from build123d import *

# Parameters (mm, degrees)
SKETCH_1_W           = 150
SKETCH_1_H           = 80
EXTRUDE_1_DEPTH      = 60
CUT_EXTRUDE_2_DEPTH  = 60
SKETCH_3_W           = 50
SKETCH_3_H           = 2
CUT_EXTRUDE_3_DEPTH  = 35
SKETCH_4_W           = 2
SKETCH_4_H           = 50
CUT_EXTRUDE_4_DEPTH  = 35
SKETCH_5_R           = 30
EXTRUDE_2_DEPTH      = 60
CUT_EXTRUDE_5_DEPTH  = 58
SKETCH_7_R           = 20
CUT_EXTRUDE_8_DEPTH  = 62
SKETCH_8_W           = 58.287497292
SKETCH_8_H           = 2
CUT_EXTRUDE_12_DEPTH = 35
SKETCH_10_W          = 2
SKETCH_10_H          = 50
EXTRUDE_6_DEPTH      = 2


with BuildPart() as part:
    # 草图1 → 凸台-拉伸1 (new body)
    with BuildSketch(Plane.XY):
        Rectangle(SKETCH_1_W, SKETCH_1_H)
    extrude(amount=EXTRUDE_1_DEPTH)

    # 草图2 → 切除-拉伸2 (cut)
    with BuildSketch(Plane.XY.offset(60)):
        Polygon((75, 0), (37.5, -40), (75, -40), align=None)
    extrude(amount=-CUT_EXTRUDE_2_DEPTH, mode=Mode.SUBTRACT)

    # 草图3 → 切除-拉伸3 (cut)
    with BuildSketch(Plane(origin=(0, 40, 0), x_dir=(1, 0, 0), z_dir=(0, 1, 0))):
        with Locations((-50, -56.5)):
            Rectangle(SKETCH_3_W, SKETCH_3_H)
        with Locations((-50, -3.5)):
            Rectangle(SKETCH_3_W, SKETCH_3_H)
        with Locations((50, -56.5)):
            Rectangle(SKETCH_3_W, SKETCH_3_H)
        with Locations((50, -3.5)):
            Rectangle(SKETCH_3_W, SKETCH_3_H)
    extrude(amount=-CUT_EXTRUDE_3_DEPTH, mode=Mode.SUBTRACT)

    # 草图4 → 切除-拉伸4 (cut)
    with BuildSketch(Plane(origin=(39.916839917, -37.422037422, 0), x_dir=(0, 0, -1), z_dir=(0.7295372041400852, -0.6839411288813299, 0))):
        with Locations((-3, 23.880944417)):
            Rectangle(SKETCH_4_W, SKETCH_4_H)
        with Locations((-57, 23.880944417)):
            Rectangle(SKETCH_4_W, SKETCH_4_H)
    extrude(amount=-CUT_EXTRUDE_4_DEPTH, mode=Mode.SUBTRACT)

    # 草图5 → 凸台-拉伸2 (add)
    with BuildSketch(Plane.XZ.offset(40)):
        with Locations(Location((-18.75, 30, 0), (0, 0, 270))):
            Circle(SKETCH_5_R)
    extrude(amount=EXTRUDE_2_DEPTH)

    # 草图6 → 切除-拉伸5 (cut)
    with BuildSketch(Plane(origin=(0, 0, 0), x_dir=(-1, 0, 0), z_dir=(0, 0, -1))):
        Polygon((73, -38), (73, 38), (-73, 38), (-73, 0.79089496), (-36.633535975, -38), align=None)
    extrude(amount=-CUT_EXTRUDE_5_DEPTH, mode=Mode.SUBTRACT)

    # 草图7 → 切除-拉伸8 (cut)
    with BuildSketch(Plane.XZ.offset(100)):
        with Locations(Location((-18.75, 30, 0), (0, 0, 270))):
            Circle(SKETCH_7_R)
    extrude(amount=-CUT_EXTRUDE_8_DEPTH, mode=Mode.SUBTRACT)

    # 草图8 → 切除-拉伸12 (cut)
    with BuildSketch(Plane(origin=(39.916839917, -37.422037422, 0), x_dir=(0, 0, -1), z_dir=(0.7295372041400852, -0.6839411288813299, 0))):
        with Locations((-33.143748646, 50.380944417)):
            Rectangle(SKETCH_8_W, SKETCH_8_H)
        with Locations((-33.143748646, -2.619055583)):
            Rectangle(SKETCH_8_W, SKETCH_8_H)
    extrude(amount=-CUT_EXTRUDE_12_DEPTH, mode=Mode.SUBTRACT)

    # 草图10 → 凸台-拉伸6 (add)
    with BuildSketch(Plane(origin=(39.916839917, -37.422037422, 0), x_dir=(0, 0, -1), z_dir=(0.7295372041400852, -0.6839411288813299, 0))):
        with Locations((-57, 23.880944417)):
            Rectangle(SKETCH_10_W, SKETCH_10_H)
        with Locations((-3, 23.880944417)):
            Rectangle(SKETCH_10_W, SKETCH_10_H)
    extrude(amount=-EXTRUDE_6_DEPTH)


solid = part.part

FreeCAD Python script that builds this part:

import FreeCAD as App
import Part
import Sketcher

V = App.Vector
Q = App.Units.Quantity

doc = App.newDocument("Part")
body = doc.addObject("PartDesign::Body", "Body")

# Sketch on XY plane
sketch1 = body.newObject("Sketcher::SketchObject", "Sketch")
sketch1.AttachmentSupport = (doc.getObject("XY_Plane"), [""])
sketch1.MapMode = "FlatFace"
sketch1.addGeometry([
    Part.LineSegment(V(-75, 40, 0), V(-75, -40, 0)),
    Part.LineSegment(V(-75, -40, 0), V(75, -40, 0)),
    Part.LineSegment(V(75, -40, 0), V(75, 40, 0)),
    Part.LineSegment(V(75, 40, 0), V(-75, 40, 0)),
], False)
sketch1.addConstraint([
    Sketcher.Constraint("Coincident", 0, 2, 1, 1),
    Sketcher.Constraint("Coincident", 1, 2, 2, 1),
    Sketcher.Constraint("Coincident", 2, 2, 3, 1),
    Sketcher.Constraint("Coincident", 3, 2, 0, 1),
    Sketcher.Constraint("Vertical", 0),
    Sketcher.Constraint("Horizontal", 1),
    Sketcher.Constraint("Vertical", 2),
    Sketcher.Constraint("Horizontal", 3),
    Sketcher.Constraint("Symmetric", 0, 2, 2, 2, -1, 1),
    Sketcher.Constraint("DistanceX", 1, 1, 1, 2, Q("150 mm")),
    Sketcher.Constraint("DistanceY", 0, 2, 0, 1, Q("80 mm")),
])
pad1 = body.newObject("PartDesign::Pad", "Pad")
pad1.Profile = sketch1
pad1.Length = 60

# Sketch on XY plane
sketch2 = body.newObject("Sketcher::SketchObject", "Sketch001")
sketch2.AttachmentSupport = (doc.getObject("XY_Plane"), [""])
sketch2.MapMode = "FlatFace"
sketch2.AttachmentOffset = App.Placement(V(0, 0, 60), App.Rotation())
sketch2.addGeometry([
    Part.LineSegment(V(75, 0, 0), V(38, -40, 0)),
    Part.LineSegment(V(38, -40, 0), V(75, -40, 0)),
    Part.LineSegment(V(75, -40, 0), V(75, 0, 0)),
], False)
sketch2.addConstraint([
    Sketcher.Constraint("Coincident", 0, 2, 1, 1),
    Sketcher.Constraint("Coincident", 1, 2, 2, 1),
    Sketcher.Constraint("Coincident", 2, 2, 0, 1),
    Sketcher.Constraint("Horizontal", 1),
    Sketcher.Constraint("Vertical", 2),
    Sketcher.Constraint("PointOnObject", 2, 2, -1),
    Sketcher.Constraint("DistanceY", 2, 1, 2, 2, Q("40 mm")),
    Sketcher.Constraint("DistanceX", 1, 1, 1, 2, Q("37.5 mm")),
    Sketcher.Constraint("DistanceX", -1, 1, 1, 2, Q("75 mm")),
])
pocket1 = body.newObject("PartDesign::Pocket", "Pocket")
pocket1.Profile = sketch2
pocket1.Length = 60

# Sketch on XZ plane
sketch3 = body.newObject("Sketcher::SketchObject", "Sketch002")
sketch3.AttachmentSupport = (doc.getObject("XZ_Plane"), [""])
sketch3.MapMode = "FlatFace"
sketch3.AttachmentOffset = App.Placement(V(0, 0, -40), App.Rotation())
sketch3.addGeometry([
    Part.LineSegment(V(-75, 55.5, 0), V(-75, 57.5, 0)),  # 0
    Part.LineSegment(V(-75, 57.5, 0), V(-25, 57.5, 0)),  # 1
    Part.LineSegment(V(-25, 57.5, 0), V(-25, 55.5, 0)),  # 2
    Part.LineSegment(V(-25, 55.5, 0), V(-75, 55.5, 0)),  # 3
    Part.LineSegment(V(-75, 2.5, 0), V(-75, 4.5, 0)),  # 4
    Part.LineSegment(V(-75, 4.5, 0), V(-25, 4.5, 0)),  # 5
    Part.LineSegment(V(-25, 4.5, 0), V(-25, 2.5, 0)),  # 6
    Part.LineSegment(V(-25, 2.5, 0), V(-75, 2.5, 0)),  # 7
    Part.LineSegment(V(25, 55.5, 0), V(25, 57.5, 0)),  # 8
    Part.LineSegment(V(25, 57.5, 0), V(75, 57.5, 0)),  # 9
    Part.LineSegment(V(75, 57.5, 0), V(75, 55.5, 0)),  # 10
    Part.LineSegment(V(75, 55.5, 0), V(25, 55.5, 0)),  # 11
    Part.LineSegment(V(25, 2.5, 0), V(25, 4.5, 0)),  # 12
    Part.LineSegment(V(25, 4.5, 0), V(75, 4.5, 0)),  # 13
    Part.LineSegment(V(75, 4.5, 0), V(75, 2.5, 0)),  # 14
    Part.LineSegment(V(75, 2.5, 0), V(25, 2.5, 0)),  # 15
], False)
sketch3.addConstraint([
    Sketcher.Constraint("Coincident", 0, 2, 1, 1),
    Sketcher.Constraint("Coincident", 1, 2, 2, 1),
    Sketcher.Constraint("Coincident", 2, 2, 3, 1),
    Sketcher.Constraint("Coincident", 3, 2, 0, 1),
    Sketcher.Constraint("Coincident", 4, 2, 5, 1),
    Sketcher.Constraint("Coincident", 5, 2, 6, 1),
    Sketcher.Constraint("Coincident", 6, 2, 7, 1),
    Sketcher.Constraint("Coincident", 7, 2, 4, 1),
    Sketcher.Constraint("Coincident", 8, 2, 9, 1),
    Sketcher.Constraint("Coincident", 9, 2, 10, 1),
    Sketcher.Constraint("Coincident", 10, 2, 11, 1),
    Sketcher.Constraint("Coincident", 11, 2, 8, 1),
    Sketcher.Constraint("Coincident", 12, 2, 13, 1),
    Sketcher.Constraint("Coincident", 13, 2, 14, 1),
    Sketcher.Constraint("Coincident", 14, 2, 15, 1),
    Sketcher.Constraint("Coincident", 15, 2, 12, 1),
    Sketcher.Constraint("Vertical", 0),
    Sketcher.Constraint("Horizontal", 1),
    Sketcher.Constraint("Vertical", 2),
    Sketcher.Constraint("Horizontal", 3),
    Sketcher.Constraint("Vertical", 4),
    Sketcher.Constraint("Horizontal", 5),
    Sketcher.Constraint("Vertical", 6),
    Sketcher.Constraint("Horizontal", 7),
    Sketcher.Constraint("Vertical", 8),
    Sketcher.Constraint("Horizontal", 9),
    Sketcher.Constraint("Vertical", 10),
    Sketcher.Constraint("Horizontal", 11),
    Sketcher.Constraint("Vertical", 12),
    Sketcher.Constraint("Horizontal", 13),
    Sketcher.Constraint("Vertical", 14),
    Sketcher.Constraint("Horizontal", 15),
    Sketcher.Constraint("Symmetric", 1, 2, 8, 2, -2),
    Sketcher.Constraint("Symmetric", 3, 2, 10, 2, -2),
    Sketcher.Constraint("Symmetric", 5, 2, 12, 2, -2),
    Sketcher.Constraint("Symmetric", 7, 2, 14, 2, -2),
    Sketcher.Constraint("Vertical", 3, 2, 4, 2),
    Sketcher.Constraint("Vertical", 2, 2, 5, 2),
    Sketcher.Constraint("Equal", 2, 4),
    Sketcher.Constraint("DistanceX", 1, 1, 1, 2, Q("50 mm")),
    Sketcher.Constraint("DistanceY", 0, 1, 0, 2, Q("2 mm")),
    Sketcher.Constraint("DistanceX", 0, 2, -1, 1, Q("75 mm")),
    Sketcher.Constraint("DistanceY", 4, 2, 3, 2, Q("51 mm")),
    Sketcher.Constraint("DistanceY", -1, 1, 0, 2, Q("57.5 mm")),
])
pocket2 = body.newObject("PartDesign::Pocket", "Pocket001")
pocket2.Profile = sketch3
pocket2.Length = 35
pocket2.Reversed = True

# Sketch on an angled plane
sketch4 = body.newObject("Sketcher::SketchObject", "Sketch003")
sketch4.Placement = App.Placement(V(39.91684, -37.422037, 0), App.Rotation(V(0, 0, -1), V(0.683941129, 0.729537204, 0), V(0.729537204, -0.683941129, 0), "ZXY"))
sketch4.addGeometry([
    Part.LineSegment(V(-4, 48.9, 0), V(-4, -1.1, 0)),  # 0
    Part.LineSegment(V(-4, -1.1, 0), V(-2, -1.1, 0)),  # 1
    Part.LineSegment(V(-2, -1.1, 0), V(-2, 48.9, 0)),  # 2
    Part.LineSegment(V(-2, 48.9, 0), V(-4, 48.9, 0)),  # 3
    Part.LineSegment(V(-58, 48.9, 0), V(-58, -1.1, 0)),  # 4
    Part.LineSegment(V(-58, -1.1, 0), V(-56, -1.1, 0)),  # 5
    Part.LineSegment(V(-56, -1.1, 0), V(-56, 48.9, 0)),  # 6
    Part.LineSegment(V(-56, 48.9, 0), V(-58, 48.9, 0)),  # 7
], False)
sketch4.addConstraint([
    Sketcher.Constraint("Coincident", 0, 2, 1, 1),
    Sketcher.Constraint("Coincident", 1, 2, 2, 1),
    Sketcher.Constraint("Coincident", 2, 2, 3, 1),
    Sketcher.Constraint("Coincident", 3, 2, 0, 1),
    Sketcher.Constraint("Coincident", 4, 2, 5, 1),
    Sketcher.Constraint("Coincident", 5, 2, 6, 1),
    Sketcher.Constraint("Coincident", 6, 2, 7, 1),
    Sketcher.Constraint("Coincident", 7, 2, 4, 1),
    Sketcher.Constraint("Vertical", 0),
    Sketcher.Constraint("Horizontal", 1),
    Sketcher.Constraint("Vertical", 2),
    Sketcher.Constraint("Horizontal", 3),
    Sketcher.Constraint("Vertical", 4),
    Sketcher.Constraint("Horizontal", 5),
    Sketcher.Constraint("Vertical", 6),
    Sketcher.Constraint("Horizontal", 7),
    Sketcher.Constraint("Horizontal", 1, 2, 4, 2),
    Sketcher.Constraint("Horizontal", 3, 2, 6, 2),
    Sketcher.Constraint("Equal", 3, 5),
    Sketcher.Constraint("DistanceX", 1, 1, 1, 2, Q("2 mm")),
    Sketcher.Constraint("DistanceY", 0, 2, 0, 1, Q("50 mm")),
    Sketcher.Constraint("DistanceX", 0, 2, -1, 1, Q("4 mm")),
    Sketcher.Constraint("DistanceX", 4, 2, -1, 1, Q("58 mm")),
    Sketcher.Constraint("DistanceY", 0, 2, -1, 1, Q("1.119056 mm")),
])
pocket3 = body.newObject("PartDesign::Pocket", "Pocket002")
pocket3.Profile = sketch4
pocket3.Length = 35

# Sketch on XZ plane
sketch5 = body.newObject("Sketcher::SketchObject", "Sketch004")
sketch5.AttachmentSupport = (doc.getObject("XZ_Plane"), [""])
sketch5.MapMode = "FlatFace"
sketch5.AttachmentOffset = App.Placement(V(0, 0, 40), App.Rotation())
sketch5.addGeometry(Part.Circle(V(-19, 30, 0), V(0, 0, 1), 30), False)
sketch5.addConstraint([
    Sketcher.Constraint("Diameter", 0, Q("60 mm")),
    Sketcher.Constraint("DistanceY", -1, 1, 0, 3, Q("30 mm")),
    Sketcher.Constraint("DistanceX", 0, 3, -1, 1, Q("18.75 mm")),
])
pad2 = body.newObject("PartDesign::Pad", "Pad001")
pad2.Profile = sketch5
pad2.Length = 60

# Sketch on XY plane
sketch6 = body.newObject("Sketcher::SketchObject", "Sketch005")
sketch6.AttachmentSupport = (doc.getObject("XY_Plane"), [""])
sketch6.MapMode = "FlatFace"
sketch6.addGeometry([
    Part.LineSegment(V(-73, -38, 0), V(-73, 38, 0)),  # 0
    Part.LineSegment(V(-73, 38, 0), V(73, 38, 0)),  # 1
    Part.LineSegment(V(73, 38, 0), V(73, 1, 0)),  # 2
    Part.LineSegment(V(73, 1, 0), V(37, -38, 0)),  # 3
    Part.LineSegment(V(37, -38, 0), V(-73, -38, 0)),  # 4
], False)
sketch6.addConstraint([
    Sketcher.Constraint("Coincident", 0, 2, 1, 1),
    Sketcher.Constraint("Coincident", 1, 2, 2, 1),
    Sketcher.Constraint("Coincident", 2, 2, 3, 1),
    Sketcher.Constraint("Coincident", 3, 2, 4, 1),
    Sketcher.Constraint("Coincident", 4, 2, 0, 1),
    Sketcher.Constraint("Vertical", 0),
    Sketcher.Constraint("Horizontal", 1),
    Sketcher.Constraint("Vertical", 2),
    Sketcher.Constraint("Horizontal", 4),
    Sketcher.Constraint("Symmetric", 1, 2, 4, 2, -1, 1),
    Sketcher.Constraint("DistanceX", 1, 1, 1, 2, Q("146 mm")),
    Sketcher.Constraint("DistanceY", 0, 1, 0, 2, Q("76 mm")),
    Sketcher.Constraint("Distance", 3, Q("53.171922 mm")),
    Sketcher.Constraint("DistanceX", 4, 2, 4, 1, Q("109.633536 mm")),
])
pocket4 = body.newObject("PartDesign::Pocket", "Pocket003")
pocket4.Profile = sketch6
pocket4.Length = 58
pocket4.Reversed = True

# Sketch on XZ plane
sketch7 = body.newObject("Sketcher::SketchObject", "Sketch006")
sketch7.AttachmentSupport = (doc.getObject("XZ_Plane"), [""])
sketch7.MapMode = "FlatFace"
sketch7.AttachmentOffset = App.Placement(V(0, 0, 100), App.Rotation())
sketch7.addGeometry(Part.Circle(V(-19, 30, 0), V(0, 0, 1), 20), False)
sketch7.addConstraint([
    Sketcher.Constraint("Diameter", 0, Q("40 mm")),
    Sketcher.Constraint("DistanceY", -1, 1, 0, 3, Q("30 mm")),
    Sketcher.Constraint("DistanceX", 0, 3, -1, 1, Q("18.75 mm")),
])
pocket5 = body.newObject("PartDesign::Pocket", "Pocket004")
pocket5.Profile = sketch7
pocket5.Length = 62

# Sketch on an angled plane
sketch8 = body.newObject("Sketcher::SketchObject", "Sketch007")
sketch8.Placement = App.Placement(V(39.91684, -37.422037, 0), App.Rotation(V(0, 0, -1), V(0.683941129, 0.729537204, 0), V(0.729537204, -0.683941129, 0), "ZXY"))
sketch8.addGeometry([
    Part.LineSegment(V(-62.3, 51.4, 0), V(-62.3, 49.4, 0)),  # 0
    Part.LineSegment(V(-62.3, 49.4, 0), V(-4, 49.4, 0)),  # 1
    Part.LineSegment(V(-4, 49.4, 0), V(-4, 51.4, 0)),  # 2
    Part.LineSegment(V(-4, 51.4, 0), V(-62.3, 51.4, 0)),  # 3
    Part.LineSegment(V(-62.3, -1.6, 0), V(-62.3, -3.6, 0)),  # 4
    Part.LineSegment(V(-62.3, -3.6, 0), V(-4, -3.6, 0)),  # 5
    Part.LineSegment(V(-4, -3.6, 0), V(-4, -1.6, 0)),  # 6
    Part.LineSegment(V(-4, -1.6, 0), V(-62.3, -1.6, 0)),  # 7
], False)
sketch8.addConstraint([
    Sketcher.Constraint("Coincident", 0, 2, 1, 1),
    Sketcher.Constraint("Coincident", 1, 2, 2, 1),
    Sketcher.Constraint("Coincident", 2, 2, 3, 1),
    Sketcher.Constraint("Coincident", 3, 2, 0, 1),
    Sketcher.Constraint("Coincident", 4, 2, 5, 1),
    Sketcher.Constraint("Coincident", 5, 2, 6, 1),
    Sketcher.Constraint("Coincident", 6, 2, 7, 1),
    Sketcher.Constraint("Coincident", 7, 2, 4, 1),
    Sketcher.Constraint("Vertical", 0),
    Sketcher.Constraint("Horizontal", 1),
    Sketcher.Constraint("Vertical", 2),
    Sketcher.Constraint("Horizontal", 3),
    Sketcher.Constraint("Vertical", 4),
    Sketcher.Constraint("Horizontal", 5),
    Sketcher.Constraint("Vertical", 6),
    Sketcher.Constraint("Horizontal", 7),
    Sketcher.Constraint("Vertical", 3, 2, 4, 2),
    Sketcher.Constraint("Vertical", 2, 2, 5, 2),
    Sketcher.Constraint("Equal", 2, 4),
    Sketcher.Constraint("DistanceY", 0, 2, 0, 1, Q("2 mm")),
    Sketcher.Constraint("DistanceX", 1, 2, -1, 1, Q("4 mm")),
    Sketcher.Constraint("DistanceY", 4, 2, 0, 2, Q("53 mm")),
    Sketcher.Constraint("DistanceX", 1, 1, 1, 2, Q("58.287497 mm")),
    Sketcher.Constraint("DistanceY", -1, 1, 0, 2, Q("49.380944 mm")),
])
pocket6 = body.newObject("PartDesign::Pocket", "Pocket005")
pocket6.Profile = sketch8
pocket6.Length = 35

# Sketch on an angled plane
sketch9 = body.newObject("Sketcher::SketchObject", "Sketch008")
sketch9.Placement = App.Placement(V(39.91684, -37.422037, 0), App.Rotation(V(0, 0, -1), V(0.683941129, 0.729537204, 0), V(0.729537204, -0.683941129, 0), "ZXY"))
sketch9.addGeometry([
    Part.LineSegment(V(-58, 48.9, 0), V(-58, -1.1, 0)),  # 0
    Part.LineSegment(V(-58, -1.1, 0), V(-56, -1.1, 0)),  # 1
    Part.LineSegment(V(-56, -1.1, 0), V(-56, 48.9, 0)),  # 2
    Part.LineSegment(V(-56, 48.9, 0), V(-58, 48.9, 0)),  # 3
    Part.LineSegment(V(-4, 48.9, 0), V(-4, -1.1, 0)),  # 4
    Part.LineSegment(V(-4, -1.1, 0), V(-2, -1.1, 0)),  # 5
    Part.LineSegment(V(-2, -1.1, 0), V(-2, 48.9, 0)),  # 6
    Part.LineSegment(V(-2, 48.9, 0), V(-4, 48.9, 0)),  # 7
], False)
sketch9.addConstraint([
    Sketcher.Constraint("Coincident", 0, 2, 1, 1),
    Sketcher.Constraint("Coincident", 1, 2, 2, 1),
    Sketcher.Constraint("Coincident", 2, 2, 3, 1),
    Sketcher.Constraint("Coincident", 3, 2, 0, 1),
    Sketcher.Constraint("Coincident", 4, 2, 5, 1),
    Sketcher.Constraint("Coincident", 5, 2, 6, 1),
    Sketcher.Constraint("Coincident", 6, 2, 7, 1),
    Sketcher.Constraint("Coincident", 7, 2, 4, 1),
    Sketcher.Constraint("Vertical", 0),
    Sketcher.Constraint("Horizontal", 1),
    Sketcher.Constraint("Vertical", 2),
    Sketcher.Constraint("Horizontal", 3),
    Sketcher.Constraint("Vertical", 4),
    Sketcher.Constraint("Horizontal", 5),
    Sketcher.Constraint("Vertical", 6),
    Sketcher.Constraint("Horizontal", 7),
    Sketcher.Constraint("Horizontal", 1, 2, 4, 2),
    Sketcher.Constraint("Horizontal", 3, 2, 6, 2),
    Sketcher.Constraint("Equal", 3, 5),
    Sketcher.Constraint("DistanceX", 1, 1, 1, 2, Q("2 mm")),
    Sketcher.Constraint("DistanceY", 0, 2, 0, 1, Q("50 mm")),
    Sketcher.Constraint("DistanceX", 0, 2, -1, 1, Q("58 mm")),
    Sketcher.Constraint("DistanceX", 4, 2, -1, 1, Q("4 mm")),
    Sketcher.Constraint("DistanceY", 0, 2, -1, 1, Q("1.119056 mm")),
])
pad3 = body.newObject("PartDesign::Pad", "Pad002")
pad3.Profile = sketch9
pad3.Length = 2
pad3.Reversed = True

doc.recompute()
